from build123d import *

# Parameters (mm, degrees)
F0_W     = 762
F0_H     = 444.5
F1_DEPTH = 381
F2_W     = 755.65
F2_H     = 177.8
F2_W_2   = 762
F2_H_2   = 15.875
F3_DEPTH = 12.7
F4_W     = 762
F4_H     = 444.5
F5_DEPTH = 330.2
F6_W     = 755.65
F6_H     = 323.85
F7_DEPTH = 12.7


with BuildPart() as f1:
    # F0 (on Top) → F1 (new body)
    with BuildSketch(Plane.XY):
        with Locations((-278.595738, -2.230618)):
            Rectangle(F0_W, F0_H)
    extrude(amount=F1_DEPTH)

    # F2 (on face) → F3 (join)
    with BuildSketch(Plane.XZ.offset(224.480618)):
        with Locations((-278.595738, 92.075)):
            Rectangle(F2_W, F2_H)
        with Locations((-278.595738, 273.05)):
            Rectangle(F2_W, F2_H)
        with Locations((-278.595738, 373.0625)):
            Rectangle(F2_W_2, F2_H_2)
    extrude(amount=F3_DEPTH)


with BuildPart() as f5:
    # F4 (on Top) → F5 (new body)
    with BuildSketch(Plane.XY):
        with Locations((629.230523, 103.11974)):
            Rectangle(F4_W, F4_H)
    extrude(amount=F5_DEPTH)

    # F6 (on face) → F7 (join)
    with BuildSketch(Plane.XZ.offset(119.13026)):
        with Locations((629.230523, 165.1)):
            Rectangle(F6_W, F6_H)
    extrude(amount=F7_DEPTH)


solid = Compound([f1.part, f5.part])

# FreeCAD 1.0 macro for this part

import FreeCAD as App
import Part
import Sketcher
Q = App.Units.Quantity

doc = App.newDocument("Part")
body = doc.addObject("PartDesign::Body", "Body")

# Sketch on XY plane
sketch1 = body.newObject("Sketcher::SketchObject", "Sketch")
sketch1.AttachmentSupport = (doc.getObject("XY_Plane"), [""])
sketch1.MapMode = "FlatFace"
sketch1.addGeometry(Part.LineSegment(App.Vector(-660, 220, 0), App.Vector(-660, -224, 0)), False)
sketch1.addGeometry(Part.LineSegment(App.Vector(-660, -224, 0), App.Vector(102, -224, 0)), False)
sketch1.addGeometry(Part.LineSegment(App.Vector(102, -224, 0), App.Vector(102, 220, 0)), False)
sketch1.addGeometry(Part.LineSegment(App.Vector(102, 220, 0), App.Vector(-660, 220, 0)), False)
sketch1.addConstraint(Sketcher.Constraint("Coincident", 0, 2, 1, 1))
sketch1.addConstraint(Sketcher.Constraint("Coincident", 1, 2, 2, 1))
sketch1.addConstraint(Sketcher.Constraint("Coincident", 2, 2, 3, 1))
sketch1.addConstraint(Sketcher.Constraint("Coincident", 3, 2, 0, 1))
sketch1.addConstraint(Sketcher.Constraint("Vertical", 0))
sketch1.addConstraint(Sketcher.Constraint("Horizontal", 1))
sketch1.addConstraint(Sketcher.Constraint("Vertical", 2))
sketch1.addConstraint(Sketcher.Constraint("Horizontal", 3))
sketch1.addConstraint(Sketcher.Constraint("DistanceX", 1, 1, 1, 2, Q("30 in")))
sketch1.addConstraint(Sketcher.Constraint("DistanceY", 0, 2, 0, 1, Q("17.5 in")))
sketch1.addConstraint(Sketcher.Constraint("DistanceX", 0, 2, -1, 1, 659.595738))
sketch1.addConstraint(Sketcher.Constraint("DistanceY", 0, 2, -1, 1, 224.480618))
pad1 = body.newObject("PartDesign::Pad", "Pad")
pad1.Profile = sketch1
pad1.Length = Q("15 in")

# Sketch on XZ plane
sketch2 = body.newObject("Sketcher::SketchObject", "Sketch001")
sketch2.AttachmentSupport = (doc.getObject("XZ_Plane"), [""])
sketch2.MapMode = "FlatFace"
sketch2.AttachmentOffset = App.Placement(App.Vector(0, 0, 224.480618), App.Rotation())
sketch2.addGeometry(Part.LineSegment(App.Vector(-656, 181, 0), App.Vector(-656, 3, 0)), False)
sketch2.addGeometry(Part.LineSegment(App.Vector(-656, 3, 0), App.Vector(99, 3, 0)), False)
sketch2.addGeometry(Part.LineSegment(App.Vector(99, 3, 0), App.Vector(99, 181, 0)), False)
sketch2.addGeometry(Part.LineSegment(App.Vector(99, 181, 0), App.Vector(-656, 181, 0)), False)
sketch2.addGeometry(Part.LineSegment(App.Vector(-656, 362, 0), App.Vector(-656, 184, 0)), False)
sketch2.addGeometry(Part.LineSegment(App.Vector(-656, 184, 0), App.Vector(99, 184, 0)), False)
sketch2.addGeometry(Part.LineSegment(App.Vector(99, 184, 0), App.Vector(99, 362, 0)), False)
sketch2.addGeometry(Part.LineSegment(App.Vector(99, 362, 0), App.Vector(-656, 362, 0)), False)
sketch2.addGeometry(Part.LineSegment(App.Vector(-660, 381, 0), App.Vector(-660, 365, 0)), False)
sketch2.addGeometry(Part.LineSegment(App.Vector(-660, 365, 0), App.Vector(102, 365, 0)), False)
sketch2.addGeometry(Part.LineSegment(App.Vector(102, 365, 0), App.Vector(102, 381, 0)), False)
sketch2.addGeometry(Part.LineSegment(App.Vector(102, 381, 0), App.Vector(-660, 381, 0)), False)
sketch2.addConstraint(Sketcher.Constraint("Coincident", 0, 2, 1, 1))
sketch2.addConstraint(Sketcher.Constraint("Coincident", 1, 2, 2, 1))
sketch2.addConstraint(Sketcher.Constraint("Coincident", 2, 2, 3, 1))
sketch2.addConstraint(Sketcher.Constraint("Coincident", 3, 2, 0, 1))
sketch2.addConstraint(Sketcher.Constraint("Coincident", 4, 2, 5, 1))
sketch2.addConstraint(Sketcher.Constraint("Coincident", 5, 2, 6, 1))
sketch2.addConstraint(Sketcher.Constraint("Coincident", 6, 2, 7, 1))
sketch2.addConstraint(Sketcher.Constraint("Coincident", 7, 2, 4, 1))
sketch2.addConstraint(Sketcher.Constraint("Coincident", 8, 2, 9, 1))
sketch2.addConstraint(Sketcher.Constraint("Coincident", 9, 2, 10, 1))
sketch2.addConstraint(Sketcher.Constraint("Coincident", 10, 2, 11, 1))
sketch2.addConstraint(Sketcher.Constraint("Coincident", 11, 2, 8, 1))
sketch2.addConstraint(Sketcher.Constraint("Vertical", 0))
sketch2.addConstraint(Sketcher.Constraint("Horizontal", 1))
sketch2.addConstraint(Sketcher.Constraint("Vertical", 2))
sketch2.addConstraint(Sketcher.Constraint("Horizontal", 3))
sketch2.addConstraint(Sketcher.Constraint("Vertical", 4))
sketch2.addConstraint(Sketcher.Constraint("Horizontal", 5))
sketch2.addConstraint(Sketcher.Constraint("Vertical", 6))
sketch2.addConstraint(Sketcher.Constraint("Horizontal", 7))
sketch2.addConstraint(Sketcher.Constraint("Vertical", 8))
sketch2.addConstraint(Sketcher.Constraint("Horizontal", 9))
sketch2.addConstraint(Sketcher.Constraint("Vertical", 10))
sketch2.addConstraint(Sketcher.Constraint("Horizontal", 11))
sketch2.addConstraint(Sketcher.Constraint("Vertical", 3, 2, 4, 2))
sketch2.addConstraint(Sketcher.Constraint("Vertical", 2, 2, 5, 2))
sketch2.addConstraint(Sketcher.Constraint("Equal", 2, 4))
sketch2.addConstraint(Sketcher.Constraint("DistanceX", 9, 1, 9, 2, Q("30 in")))
sketch2.addConstraint(Sketcher.Constraint("DistanceY", 0, 2, 0, 1, Q("7 in")))
sketch2.addConstraint(Sketcher.Constraint("DistanceY", -1, 1, 10, 2, Q("15 in")))
sketch2.addConstraint(Sketcher.Constraint("DistanceX", 1, 1, 1, 2, Q("29.75 in")))
sketch2.addConstraint(Sketcher.Constraint("DistanceY", 8, 2, 8, 1, Q("0.625 in")))
sketch2.addConstraint(Sketcher.Constraint("DistanceY", -1, 1, 4, 2, Q("7.25 in")))
sketch2.addConstraint(Sketcher.Constraint("DistanceY", 3, 2, 8, 2, Q("7.25 in")))
sketch2.addConstraint(Sketcher.Constraint("DistanceX", 8, 2, 7, 2, Q("0.125 in")))
sketch2.addConstraint(Sketcher.Constraint("DistanceX", 0, 2, -1, 1, 656.420738))
pad2 = body.newObject("PartDesign::Pad", "Pad001")
pad2.Profile = sketch2
pad2.Length = Q("0.5 in")
body2 = doc.addObject("PartDesign::Body", "Body001")

# Sketch on XY plane
sketch3 = body2.newObject("Sketcher::SketchObject", "Sketch002")
sketch3.AttachmentSupport = (doc.getObject("XY_Plane001"), [""])
sketch3.MapMode = "FlatFace"
sketch3.addGeometry(Part.LineSegment(App.Vector(248, 325, 0), App.Vector(248, -119, 0)), False)
sketch3.addGeometry(Part.LineSegment(App.Vector(248, -119, 0), App.Vector(1010, -119, 0)), False)
sketch3.addGeometry(Part.LineSegment(App.Vector(1010, -119, 0), App.Vector(1010, 325, 0)), False)
sketch3.addGeometry(Part.LineSegment(App.Vector(1010, 325, 0), App.Vector(248, 325, 0)), False)
sketch3.addConstraint(Sketcher.Constraint("Coincident", 0, 2, 1, 1))
sketch3.addConstraint(Sketcher.Constraint("Coincident", 1, 2, 2, 1))
sketch3.addConstraint(Sketcher.Constraint("Coincident", 2, 2, 3, 1))
sketch3.addConstraint(Sketcher.Constraint("Coincident", 3, 2, 0, 1))
sketch3.addConstraint(Sketcher.Constraint("Vertical", 0))
sketch3.addConstraint(Sketcher.Constraint("Horizontal", 1))
sketch3.addConstraint(Sketcher.Constraint("Vertical", 2))
sketch3.addConstraint(Sketcher.Constraint("Horizontal", 3))
sketch3.addConstraint(Sketcher.Constraint("DistanceX", 1, 1, 1, 2, Q("30 in")))
sketch3.addConstraint(Sketcher.Constraint("DistanceY", 0, 2, 0, 1, Q("17.5 in")))
sketch3.addConstraint(Sketcher.Constraint("DistanceY", 0, 2, -1, 1, 119.13026))
sketch3.addConstraint(Sketcher.Constraint("DistanceX", -1, 1, 0, 2, 248.230523))
pad3 = body2.newObject("PartDesign::Pad", "Pad002")
pad3.Profile = sketch3
pad3.Length = Q("13 in")

# Sketch on XZ plane
sketch4 = body2.newObject("Sketcher::SketchObject", "Sketch003")
sketch4.AttachmentSupport = (doc.getObject("XZ_Plane001"), [""])
sketch4.MapMode = "FlatFace"
sketch4.AttachmentOffset = App.Placement(App.Vector(0, 0, 119.13026), App.Rotation())
sketch4.addGeometry(Part.LineSegment(App.Vector(251, 327, 0), App.Vector(251, 3, 0)), False)
sketch4.addGeometry(Part.LineSegment(App.Vector(251, 3, 0), App.Vector(1007, 3, 0)), False)
sketch4.addGeometry(Part.LineSegment(App.Vector(1007, 3, 0), App.Vector(1007, 327, 0)), False)
sketch4.addGeometry(Part.LineSegment(App.Vector(1007, 327, 0), App.Vector(251, 327, 0)), False)
sketch4.addConstraint(Sketcher.Constraint("Coincident", 0, 2, 1, 1))
sketch4.addConstraint(Sketcher.Constraint("Coincident", 1, 2, 2, 1))
sketch4.addConstraint(Sketcher.Constraint("Coincident", 2, 2, 3, 1))
sketch4.addConstraint(Sketcher.Constraint("Coincident", 3, 2, 0, 1))
sketch4.addConstraint(Sketcher.Constraint("Vertical", 0))
sketch4.addConstraint(Sketcher.Constraint("Horizontal", 1))
sketch4.addConstraint(Sketcher.Constraint("Vertical", 2))
sketch4.addConstraint(Sketcher.Constraint("Horizontal", 3))
sketch4.addConstraint(Sketcher.Constraint("DistanceX", 1, 1, 1, 2, Q("29.75 in")))
sketch4.addConstraint(Sketcher.Constraint("DistanceY", 0, 2, 0, 1, Q("12.75 in")))
sketch4.addConstraint(Sketcher.Constraint("DistanceY", -1, 1, 0, 2, Q("0.125 in")))
sketch4.addConstraint(Sketcher.Constraint("DistanceX", -1, 1, 0, 2, 251.405523))
pad4 = body2.newObject("PartDesign::Pad", "Pad003")
pad4.Profile = sketch4
pad4.Length = Q("0.5 in")

doc.recompute()
